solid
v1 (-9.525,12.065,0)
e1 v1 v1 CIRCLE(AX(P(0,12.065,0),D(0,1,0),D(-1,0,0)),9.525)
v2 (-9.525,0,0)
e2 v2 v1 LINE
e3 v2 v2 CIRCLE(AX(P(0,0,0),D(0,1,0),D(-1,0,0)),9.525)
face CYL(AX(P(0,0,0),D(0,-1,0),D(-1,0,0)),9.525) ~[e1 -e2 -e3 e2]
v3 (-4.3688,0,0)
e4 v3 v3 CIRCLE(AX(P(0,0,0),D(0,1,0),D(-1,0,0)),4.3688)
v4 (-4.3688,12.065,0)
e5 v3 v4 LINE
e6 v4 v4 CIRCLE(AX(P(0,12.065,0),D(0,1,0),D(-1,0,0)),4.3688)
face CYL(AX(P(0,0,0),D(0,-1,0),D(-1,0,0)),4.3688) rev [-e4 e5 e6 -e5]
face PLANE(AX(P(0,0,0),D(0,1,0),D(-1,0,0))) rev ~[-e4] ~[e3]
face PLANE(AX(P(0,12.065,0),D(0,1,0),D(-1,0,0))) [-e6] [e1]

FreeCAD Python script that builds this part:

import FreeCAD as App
import Part
import Sketcher
Q = App.Units.Quantity

doc = App.newDocument("Part")
body = doc.addObject("PartDesign::Body", "Body")

# Sketch on XZ plane
sketch1 = doc.addObject("Sketcher::SketchObject", "Sketch")
body.addObject(sketch1)
sketch1.AttachmentSupport = (doc.XZ_Plane, [""])
sketch1.MapMode = "FlatFace"
sketch1.addGeometry(Part.Circle(App.Vector(0, 0, 0), App.Vector(0, 0, 1), 9.525), False)
sketch1.addGeometry(Part.Circle(App.Vector(0, 0, 0), App.Vector(0, 0, 1), 4.3688), False)
sketch1.addConstraint(Sketcher.Constraint("Coincident", 0, 3, -1, 1))
sketch1.addConstraint(Sketcher.Constraint("Coincident", 1, 3, -1, 1))
sketch1.addConstraint(Sketcher.Constraint("Diameter", 0, Q("0.75 in")))
sketch1.addConstraint(Sketcher.Constraint("Diameter", 1, Q("0.344 in")))
pad1 = doc.addObject("PartDesign::Pad", "Pad")
body.addObject(pad1)
pad1.Profile = sketch1
pad1.Length = Q("0.475 in")
pad1.Reversed = True

doc.recompute()
